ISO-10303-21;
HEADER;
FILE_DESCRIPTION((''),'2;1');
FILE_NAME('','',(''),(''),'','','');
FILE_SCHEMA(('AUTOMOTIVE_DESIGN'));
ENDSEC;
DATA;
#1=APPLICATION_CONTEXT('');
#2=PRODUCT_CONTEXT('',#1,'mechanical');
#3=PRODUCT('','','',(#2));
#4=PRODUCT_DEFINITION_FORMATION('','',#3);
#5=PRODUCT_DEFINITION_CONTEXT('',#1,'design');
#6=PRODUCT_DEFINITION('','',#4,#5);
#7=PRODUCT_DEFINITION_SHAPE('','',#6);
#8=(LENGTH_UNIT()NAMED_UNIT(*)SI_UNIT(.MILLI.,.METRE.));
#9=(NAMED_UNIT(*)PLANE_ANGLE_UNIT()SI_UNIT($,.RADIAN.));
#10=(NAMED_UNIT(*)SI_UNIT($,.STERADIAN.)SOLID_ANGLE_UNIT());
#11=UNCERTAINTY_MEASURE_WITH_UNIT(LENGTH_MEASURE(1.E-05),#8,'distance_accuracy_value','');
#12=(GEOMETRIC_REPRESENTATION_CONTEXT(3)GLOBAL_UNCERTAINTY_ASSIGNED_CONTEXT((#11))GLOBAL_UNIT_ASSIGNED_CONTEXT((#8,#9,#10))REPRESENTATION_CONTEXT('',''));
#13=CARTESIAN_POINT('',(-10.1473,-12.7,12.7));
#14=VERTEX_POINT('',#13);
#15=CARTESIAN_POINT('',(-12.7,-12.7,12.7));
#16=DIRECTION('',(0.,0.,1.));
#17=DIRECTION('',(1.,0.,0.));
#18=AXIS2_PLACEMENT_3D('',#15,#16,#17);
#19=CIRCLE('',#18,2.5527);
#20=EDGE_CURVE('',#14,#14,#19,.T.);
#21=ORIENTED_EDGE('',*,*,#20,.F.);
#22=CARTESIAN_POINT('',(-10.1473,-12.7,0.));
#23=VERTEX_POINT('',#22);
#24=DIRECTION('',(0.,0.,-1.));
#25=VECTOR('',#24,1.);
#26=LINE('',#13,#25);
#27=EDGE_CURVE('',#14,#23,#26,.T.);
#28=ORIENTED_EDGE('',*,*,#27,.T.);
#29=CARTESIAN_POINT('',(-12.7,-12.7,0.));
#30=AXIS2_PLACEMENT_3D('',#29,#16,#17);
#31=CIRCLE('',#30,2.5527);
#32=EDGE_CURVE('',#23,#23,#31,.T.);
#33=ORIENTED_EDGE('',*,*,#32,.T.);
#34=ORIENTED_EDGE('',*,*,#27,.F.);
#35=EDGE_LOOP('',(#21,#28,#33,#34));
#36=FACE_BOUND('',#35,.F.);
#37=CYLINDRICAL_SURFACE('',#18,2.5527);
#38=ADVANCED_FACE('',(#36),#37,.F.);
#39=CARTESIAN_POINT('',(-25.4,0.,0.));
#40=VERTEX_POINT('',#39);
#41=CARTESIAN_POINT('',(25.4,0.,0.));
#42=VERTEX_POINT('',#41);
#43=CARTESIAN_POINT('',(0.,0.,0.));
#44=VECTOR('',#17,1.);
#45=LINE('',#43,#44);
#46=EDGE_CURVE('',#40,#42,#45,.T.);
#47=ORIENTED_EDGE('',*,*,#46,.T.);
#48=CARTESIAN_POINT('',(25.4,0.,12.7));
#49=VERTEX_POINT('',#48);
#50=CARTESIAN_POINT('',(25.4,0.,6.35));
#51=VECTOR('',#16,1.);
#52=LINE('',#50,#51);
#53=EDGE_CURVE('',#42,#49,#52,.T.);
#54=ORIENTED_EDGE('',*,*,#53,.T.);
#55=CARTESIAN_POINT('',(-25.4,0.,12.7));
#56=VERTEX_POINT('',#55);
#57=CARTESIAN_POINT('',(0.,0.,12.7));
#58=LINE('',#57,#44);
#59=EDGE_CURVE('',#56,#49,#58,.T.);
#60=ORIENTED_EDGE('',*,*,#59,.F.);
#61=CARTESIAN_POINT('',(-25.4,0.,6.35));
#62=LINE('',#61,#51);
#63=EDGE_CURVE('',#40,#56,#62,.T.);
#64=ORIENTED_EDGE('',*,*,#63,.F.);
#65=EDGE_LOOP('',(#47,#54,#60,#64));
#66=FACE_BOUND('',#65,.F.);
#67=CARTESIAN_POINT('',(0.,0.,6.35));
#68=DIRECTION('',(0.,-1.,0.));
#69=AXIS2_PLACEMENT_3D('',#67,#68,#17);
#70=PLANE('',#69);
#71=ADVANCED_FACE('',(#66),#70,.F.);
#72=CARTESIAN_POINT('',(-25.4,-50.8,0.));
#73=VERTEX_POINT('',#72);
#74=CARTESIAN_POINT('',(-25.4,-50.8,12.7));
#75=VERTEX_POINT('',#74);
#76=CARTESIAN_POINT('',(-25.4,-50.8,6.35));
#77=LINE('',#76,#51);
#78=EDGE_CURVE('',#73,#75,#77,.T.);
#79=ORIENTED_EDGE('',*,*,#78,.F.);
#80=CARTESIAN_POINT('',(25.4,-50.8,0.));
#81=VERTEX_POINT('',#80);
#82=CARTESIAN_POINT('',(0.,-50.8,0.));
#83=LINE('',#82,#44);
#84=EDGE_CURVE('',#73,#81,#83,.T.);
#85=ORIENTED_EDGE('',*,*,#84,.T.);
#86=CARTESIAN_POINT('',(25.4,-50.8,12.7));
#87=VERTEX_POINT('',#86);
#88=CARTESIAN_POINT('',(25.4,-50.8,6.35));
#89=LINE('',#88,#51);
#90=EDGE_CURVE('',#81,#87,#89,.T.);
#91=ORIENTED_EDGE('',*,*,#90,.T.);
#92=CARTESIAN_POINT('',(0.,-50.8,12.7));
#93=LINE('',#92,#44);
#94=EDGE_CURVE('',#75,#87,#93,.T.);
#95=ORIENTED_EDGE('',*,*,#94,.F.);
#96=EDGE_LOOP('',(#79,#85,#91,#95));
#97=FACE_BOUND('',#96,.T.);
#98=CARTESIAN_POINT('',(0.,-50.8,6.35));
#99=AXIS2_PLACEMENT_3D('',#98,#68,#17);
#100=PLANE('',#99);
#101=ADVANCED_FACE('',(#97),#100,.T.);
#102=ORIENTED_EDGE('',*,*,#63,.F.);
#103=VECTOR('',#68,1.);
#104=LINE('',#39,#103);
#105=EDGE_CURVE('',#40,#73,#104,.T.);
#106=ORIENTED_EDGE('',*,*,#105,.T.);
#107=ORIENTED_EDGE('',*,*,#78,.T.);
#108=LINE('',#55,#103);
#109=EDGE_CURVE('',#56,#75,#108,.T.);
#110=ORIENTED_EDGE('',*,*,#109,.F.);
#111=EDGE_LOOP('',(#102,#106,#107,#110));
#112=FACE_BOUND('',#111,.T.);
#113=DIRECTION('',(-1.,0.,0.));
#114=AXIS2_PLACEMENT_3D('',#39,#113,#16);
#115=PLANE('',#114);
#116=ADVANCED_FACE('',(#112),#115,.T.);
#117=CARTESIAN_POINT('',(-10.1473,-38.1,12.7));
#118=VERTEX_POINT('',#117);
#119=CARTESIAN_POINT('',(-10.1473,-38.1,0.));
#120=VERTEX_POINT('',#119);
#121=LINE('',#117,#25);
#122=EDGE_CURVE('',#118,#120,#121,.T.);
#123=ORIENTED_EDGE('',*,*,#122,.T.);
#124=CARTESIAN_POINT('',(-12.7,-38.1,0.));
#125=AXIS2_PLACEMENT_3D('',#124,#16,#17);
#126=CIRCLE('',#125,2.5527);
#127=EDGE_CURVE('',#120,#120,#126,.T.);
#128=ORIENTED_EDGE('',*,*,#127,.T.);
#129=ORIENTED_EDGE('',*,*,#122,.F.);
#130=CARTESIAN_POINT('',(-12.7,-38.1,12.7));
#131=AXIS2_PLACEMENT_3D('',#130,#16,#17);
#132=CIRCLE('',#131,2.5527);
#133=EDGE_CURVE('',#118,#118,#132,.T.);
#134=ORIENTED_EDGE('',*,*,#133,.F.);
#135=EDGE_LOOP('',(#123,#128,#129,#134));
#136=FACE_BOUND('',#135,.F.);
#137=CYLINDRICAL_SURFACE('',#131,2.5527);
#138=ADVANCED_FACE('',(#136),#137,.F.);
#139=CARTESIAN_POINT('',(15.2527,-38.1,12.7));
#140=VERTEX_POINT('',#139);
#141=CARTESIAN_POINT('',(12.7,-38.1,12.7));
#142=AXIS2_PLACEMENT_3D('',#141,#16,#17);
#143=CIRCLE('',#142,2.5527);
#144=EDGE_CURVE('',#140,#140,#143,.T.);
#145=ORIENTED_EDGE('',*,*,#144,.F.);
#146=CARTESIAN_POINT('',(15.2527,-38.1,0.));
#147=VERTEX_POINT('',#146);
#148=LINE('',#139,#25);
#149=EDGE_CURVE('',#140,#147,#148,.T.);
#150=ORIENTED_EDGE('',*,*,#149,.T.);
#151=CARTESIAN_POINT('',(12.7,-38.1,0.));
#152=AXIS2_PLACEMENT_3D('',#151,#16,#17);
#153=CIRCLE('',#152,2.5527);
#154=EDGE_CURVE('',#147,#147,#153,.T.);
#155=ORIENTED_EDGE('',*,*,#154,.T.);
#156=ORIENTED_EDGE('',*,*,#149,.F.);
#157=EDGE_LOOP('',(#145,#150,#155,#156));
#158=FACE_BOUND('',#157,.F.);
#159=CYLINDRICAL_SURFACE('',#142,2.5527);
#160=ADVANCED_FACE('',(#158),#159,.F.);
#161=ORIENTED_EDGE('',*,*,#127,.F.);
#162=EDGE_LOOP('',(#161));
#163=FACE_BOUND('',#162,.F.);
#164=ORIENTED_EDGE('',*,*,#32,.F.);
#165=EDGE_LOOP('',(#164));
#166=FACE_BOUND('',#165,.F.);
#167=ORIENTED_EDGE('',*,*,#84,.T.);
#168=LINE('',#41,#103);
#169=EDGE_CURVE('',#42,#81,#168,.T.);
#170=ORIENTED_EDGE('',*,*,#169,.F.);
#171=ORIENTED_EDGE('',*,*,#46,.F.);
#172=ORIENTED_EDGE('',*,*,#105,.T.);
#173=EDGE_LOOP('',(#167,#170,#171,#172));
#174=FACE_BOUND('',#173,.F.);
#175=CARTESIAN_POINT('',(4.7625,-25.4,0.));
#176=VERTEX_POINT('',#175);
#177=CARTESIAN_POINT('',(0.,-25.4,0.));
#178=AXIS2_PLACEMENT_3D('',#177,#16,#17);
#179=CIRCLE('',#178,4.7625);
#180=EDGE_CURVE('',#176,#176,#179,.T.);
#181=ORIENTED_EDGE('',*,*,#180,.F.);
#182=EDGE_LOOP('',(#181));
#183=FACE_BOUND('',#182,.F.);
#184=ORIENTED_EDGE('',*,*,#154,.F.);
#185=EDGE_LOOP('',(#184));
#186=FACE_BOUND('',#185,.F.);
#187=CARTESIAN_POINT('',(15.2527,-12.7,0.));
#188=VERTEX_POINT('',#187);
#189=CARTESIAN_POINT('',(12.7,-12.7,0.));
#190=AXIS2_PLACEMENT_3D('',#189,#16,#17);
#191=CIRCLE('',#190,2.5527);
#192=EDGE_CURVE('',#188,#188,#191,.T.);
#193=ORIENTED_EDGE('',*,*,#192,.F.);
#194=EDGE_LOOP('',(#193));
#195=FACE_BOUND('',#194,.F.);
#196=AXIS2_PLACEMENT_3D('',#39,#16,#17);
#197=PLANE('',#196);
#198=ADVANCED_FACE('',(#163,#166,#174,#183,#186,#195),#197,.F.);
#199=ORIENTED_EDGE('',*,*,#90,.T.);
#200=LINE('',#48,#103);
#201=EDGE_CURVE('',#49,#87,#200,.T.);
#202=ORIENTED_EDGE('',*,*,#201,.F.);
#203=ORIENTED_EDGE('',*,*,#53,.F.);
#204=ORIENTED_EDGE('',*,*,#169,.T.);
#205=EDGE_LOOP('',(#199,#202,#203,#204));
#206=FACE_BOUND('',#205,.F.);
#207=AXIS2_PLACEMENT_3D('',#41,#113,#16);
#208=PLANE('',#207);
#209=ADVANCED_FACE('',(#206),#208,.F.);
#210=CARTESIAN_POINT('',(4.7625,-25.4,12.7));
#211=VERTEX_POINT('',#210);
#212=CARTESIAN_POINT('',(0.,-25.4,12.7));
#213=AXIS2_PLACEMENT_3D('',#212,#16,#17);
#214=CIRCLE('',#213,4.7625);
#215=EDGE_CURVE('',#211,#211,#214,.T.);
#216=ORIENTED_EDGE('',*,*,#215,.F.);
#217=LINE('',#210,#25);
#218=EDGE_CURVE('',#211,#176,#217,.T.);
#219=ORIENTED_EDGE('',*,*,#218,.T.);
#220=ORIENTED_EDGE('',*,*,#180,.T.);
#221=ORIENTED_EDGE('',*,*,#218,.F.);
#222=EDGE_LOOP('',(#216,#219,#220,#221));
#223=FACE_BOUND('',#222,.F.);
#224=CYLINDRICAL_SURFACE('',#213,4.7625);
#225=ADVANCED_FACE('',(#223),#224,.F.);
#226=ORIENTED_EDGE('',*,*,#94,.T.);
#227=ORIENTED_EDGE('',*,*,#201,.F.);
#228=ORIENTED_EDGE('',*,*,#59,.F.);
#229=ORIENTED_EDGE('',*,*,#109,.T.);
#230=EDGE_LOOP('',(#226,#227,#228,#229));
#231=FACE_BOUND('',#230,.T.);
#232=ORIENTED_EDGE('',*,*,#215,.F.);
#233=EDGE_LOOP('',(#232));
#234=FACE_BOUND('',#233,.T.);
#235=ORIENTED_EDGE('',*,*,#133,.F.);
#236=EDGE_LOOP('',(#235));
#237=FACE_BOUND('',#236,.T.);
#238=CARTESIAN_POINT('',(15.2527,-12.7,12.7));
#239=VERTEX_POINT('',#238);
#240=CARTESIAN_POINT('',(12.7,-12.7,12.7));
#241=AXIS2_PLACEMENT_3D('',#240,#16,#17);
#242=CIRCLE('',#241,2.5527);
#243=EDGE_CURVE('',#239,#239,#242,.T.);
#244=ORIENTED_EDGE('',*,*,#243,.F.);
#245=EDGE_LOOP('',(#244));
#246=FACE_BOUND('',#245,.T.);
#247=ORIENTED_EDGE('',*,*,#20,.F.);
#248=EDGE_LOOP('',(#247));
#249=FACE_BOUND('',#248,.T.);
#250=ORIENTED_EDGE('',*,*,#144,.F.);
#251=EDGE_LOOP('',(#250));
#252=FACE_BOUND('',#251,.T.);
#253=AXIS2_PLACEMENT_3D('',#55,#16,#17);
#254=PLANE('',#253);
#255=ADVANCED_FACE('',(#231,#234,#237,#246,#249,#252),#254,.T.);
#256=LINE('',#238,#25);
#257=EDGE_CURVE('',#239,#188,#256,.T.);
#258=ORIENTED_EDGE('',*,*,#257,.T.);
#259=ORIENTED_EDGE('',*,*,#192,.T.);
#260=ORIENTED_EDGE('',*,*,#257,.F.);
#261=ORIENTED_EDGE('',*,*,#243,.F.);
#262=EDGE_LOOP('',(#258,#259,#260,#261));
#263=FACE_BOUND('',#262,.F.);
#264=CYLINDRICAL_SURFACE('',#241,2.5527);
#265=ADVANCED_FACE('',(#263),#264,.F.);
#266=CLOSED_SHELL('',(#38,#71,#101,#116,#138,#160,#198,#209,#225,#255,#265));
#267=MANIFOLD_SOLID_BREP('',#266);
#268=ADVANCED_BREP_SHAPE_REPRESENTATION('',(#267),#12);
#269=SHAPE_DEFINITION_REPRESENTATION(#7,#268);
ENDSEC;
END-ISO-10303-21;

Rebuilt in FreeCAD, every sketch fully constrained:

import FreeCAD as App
import Part
import Sketcher

V = App.Vector
Q = App.Units.Quantity

doc = App.newDocument("Part")
body = doc.addObject("PartDesign::Body", "Body")

sketch1 = body.newObject("Sketcher::SketchObject", "Sketch")
sketch1.AttachmentSupport = (doc.getObject("XZ_Plane"), [""])
sketch1.MapMode = "FlatFace"
sketch1.addGeometry([
    Part.LineSegment(V(-25, 13, 0), V(-25, 0, 0)),
    Part.LineSegment(V(-25, 0, 0), V(25, 0, 0)),
    Part.LineSegment(V(25, 0, 0), V(25, 13, 0)),
    Part.LineSegment(V(25, 13, 0), V(-25, 13, 0)),
], False)
sketch1.addConstraint([
    Sketcher.Constraint("Coincident", 0, 2, 1, 1),
    Sketcher.Constraint("Coincident", 1, 2, 2, 1),
    Sketcher.Constraint("Coincident", 2, 2, 3, 1),
    Sketcher.Constraint("Coincident", 3, 2, 0, 1),
    Sketcher.Constraint("Vertical", 0),
    Sketcher.Constraint("Horizontal", 1),
    Sketcher.Constraint("Vertical", 2),
    Sketcher.Constraint("Horizontal", 3),
    Sketcher.Constraint("Symmetric", 0, 2, 1, 2, -1, 1),
    Sketcher.Constraint("DistanceX", 1, 1, 1, 2, Q("2 in")),
    Sketcher.Constraint("DistanceY", 0, 2, 0, 1, Q("0.5 in")),
])
pad1 = body.newObject("PartDesign::Pad", "Pad")
pad1.Profile = sketch1
pad1.Length = Q("2 in")

sketch2 = body.newObject("Sketcher::SketchObject", "Sketch001")
sketch2.AttachmentSupport = (doc.getObject("XY_Plane"), [""])
sketch2.MapMode = "FlatFace"
sketch2.AttachmentOffset = App.Placement(V(0, 0, 0.5 * 25.4), App.Rotation())
sketch2.addGeometry([
    Part.Circle(V(-12.7, -12.7, 0), V(0, 0, 1), 2.6),
    Part.Circle(V(-12.7, -38.1, 0), V(0, 0, 1), 2.6),
    Part.Circle(V(12.7, -38.1, 0), V(0, 0, 1), 2.6),
    Part.Circle(V(12.7, -12.7, 0), V(0, 0, 1), 2.6),
    Part.Circle(V(0, -25.4, 0), V(0, 0, 1), 4.8),
], False)
sketch2.addConstraint([
    Sketcher.Constraint("Equal", 0, 1),
    Sketcher.Constraint("Equal", 1, 2),
    Sketcher.Constraint("Equal", 2, 3),
    Sketcher.Constraint("Symmetric", 1, 3, 2, 3, -2),
    Sketcher.Constraint("Symmetric", 0, 3, 3, 3, -2),
    Sketcher.Constraint("PointOnObject", 4, 3, -2),
    Sketcher.Constraint("Vertical", 0, 3, 1, 3),
    Sketcher.Constraint("Diameter", 0, Q("0.201 in")),
    Sketcher.Constraint("Diameter", 4, Q("0.375 in")),
    Sketcher.Constraint("DistanceY", 4, 3, -1, 1, Q("1 in")),
    Sketcher.Constraint("DistanceY", 1, 3, 0, 3, Q("1 in")),
    Sketcher.Constraint("DistanceX", 1, 3, 2, 3, Q("1 in")),
    Sketcher.Constraint("DistanceY", 0, 3, -1, 1, Q("0.5 in")),
])
pocket1 = body.newObject("PartDesign::Pocket", "Pocket")
pocket1.Profile = sketch2
pocket1.Type = "ThroughAll"
body2 = doc.addObject("PartDesign::Body", "Body001")

sketch3 = body2.newObject("Sketcher::SketchObject", "Sketch002")
sketch3.AttachmentSupport = (doc.getObject("XY_Plane001"), [""])
sketch3.MapMode = "FlatFace"
sketch3.AttachmentOffset = App.Placement(V(0, 0, 0.5 * 25.4), App.Rotation())
sketch3.addGeometry([
    Part.LineSegment(V(-25.4, 0, 0), V(-25.4, -50.8, 0)),
    Part.LineSegment(V(-25.4, -50.8, 0), V(25.4, -50.8, 0)),
    Part.LineSegment(V(25.4, -50.8, 0), V(25.4, 0, 0)),
    Part.LineSegment(V(25.4, 0, 0), V(-25.4, 0, 0)),
    Part.Circle(V(-12.7, -38.1, 0), V(0, 0, 1), 4.8),
    Part.Circle(V(12.7, -38.1, 0), V(0, 0, 1), 4.8),
    Part.Circle(V(-12.7, -12.7, 0), V(0, 0, 1), 4.8),
    Part.Circle(V(0, -25.4, 0), V(0, 0, 1), 9.5),
    Part.Circle(V(12.7, -12.7, 0), V(0, 0, 1), 4.8),
], False)
sketch3.addConstraint([
    Sketcher.Constraint("Coincident", 0, 2, 1, 1),
    Sketcher.Constraint("Coincident", 1, 2, 2, 1),
    Sketcher.Constraint("Coincident", 2, 2, 3, 1),
    Sketcher.Constraint("Coincident", 3, 2, 0, 1),
    Sketcher.Constraint("Vertical", 0),
    Sketcher.Constraint("Horizontal", 1),
    Sketcher.Constraint("Vertical", 2),
    Sketcher.Constraint("Horizontal", 3),
    Sketcher.Constraint("Equal", 4, 5),
    Sketcher.Constraint("Equal", 5, 6),
    Sketcher.Constraint("Equal", 6, 8),
    Sketcher.Constraint("Symmetric", 2, 2, 3, 2, -1, 1),
    Sketcher.Constraint("Symmetric", 4, 3, 5, 3, -2),
    Sketcher.Constraint("Symmetric", 6, 3, 8, 3, -2),
    Sketcher.Constraint("PointOnObject", 7, 3, -2),
    Sketcher.Constraint("Vertical", 4, 3, 6, 3),
    Sketcher.Constraint("Equal", 3, 0),
    Sketcher.Constraint("Diameter", 7, Q("0.75 in")),
    Sketcher.Constraint("DistanceX", 1, 1, 1, 2, Q("2 in")),
    Sketcher.Constraint("Diameter", 4, Q("0.375 in")),
    Sketcher.Constraint("DistanceY", 7, 3, -1, 1, Q("1 in")),
    Sketcher.Constraint("DistanceX", 4, 3, 5, 3, Q("1 in")),
    Sketcher.Constraint("DistanceY", 4, 3, 6, 3, Q("1 in")),
    Sketcher.Constraint("DistanceY", 4, 3, -1, 1, Q("1.5 in")),
])
pad2 = body2.newObject("PartDesign::Pad", "Pad001")
pad2.Profile = sketch3
pad2.Length = Q("0.5 in")

sketch4 = body2.newObject("Sketcher::SketchObject", "Sketch003")
sketch4.AttachmentSupport = (doc.getObject("XY_Plane001"), [""])
sketch4.MapMode = "FlatFace"
sketch4.AttachmentOffset = App.Placement(V(0, 0, 1 * 25.4), App.Rotation())
sketch4.addGeometry([
    Part.LineSegment(V(-25.4, 0, 0), V(-25.4, -50.8, 0)),
    Part.LineSegment(V(-25.4, -50.8, 0), V(25.4, -50.8, 0)),
    Part.LineSegment(V(25.4, -50.8, 0), V(25.4, 0, 0)),
    Part.LineSegment(V(25.4, 0, 0), V(-25.4, 0, 0)),
    Part.Circle(V(-12.7, -38.1, 0), V(0, 0, 1), 4.8),
    Part.Circle(V(12.7, -38.1, 0), V(0, 0, 1), 4.8),
    Part.Circle(V(-12.7, -12.7, 0), V(0, 0, 1), 4.8),
    Part.Circle(V(0, -25.4, 0), V(0, 0, 1), 3.2),
    Part.Circle(V(12.7, -12.7, 0), V(0, 0, 1), 4.8),
], False)
sketch4.addConstraint([
    Sketcher.Constraint("Coincident", 0, 2, 1, 1),
    Sketcher.Constraint("Coincident", 1, 2, 2, 1),
    Sketcher.Constraint("Coincident", 2, 2, 3, 1),
    Sketcher.Constraint("Coincident", 3, 2, 0, 1),
    Sketcher.Constraint("Vertical", 0),
    Sketcher.Constraint("Horizontal", 1),
    Sketcher.Constraint("Vertical", 2),
    Sketcher.Constraint("Horizontal", 3),
    Sketcher.Constraint("Equal", 4, 5),
    Sketcher.Constraint("Equal", 5, 6),
    Sketcher.Constraint("Equal", 6, 8),
    Sketcher.Constraint("Symmetric", 2, 2, 3, 2, -1, 1),
    Sketcher.Constraint("Symmetric", 4, 3, 5, 3, -2),
    Sketcher.Constraint("Symmetric", 6, 3, 8, 3, -2),
    Sketcher.Constraint("PointOnObject", 7, 3, -2),
    Sketcher.Constraint("Vertical", 4, 3, 6, 3),
    Sketcher.Constraint("Equal", 3, 0),
    Sketcher.Constraint("Diameter", 7, Q("0.25 in")),
    Sketcher.Constraint("DistanceX", 1, 1, 1, 2, Q("2 in")),
    Sketcher.Constraint("Diameter", 4, Q("0.375 in")),
    Sketcher.Constraint("DistanceY", 7, 3, -1, 1, Q("1 in")),
    Sketcher.Constraint("DistanceX", 4, 3, 5, 3, Q("1 in")),
    Sketcher.Constraint("DistanceY", 4, 3, 6, 3, Q("1 in")),
    Sketcher.Constraint("DistanceY", 4, 3, -1, 1, Q("1.5 in")),
])
pad3 = body2.newObject("PartDesign::Pad", "Pad002")
pad3.Profile = sketch4
pad3.Length = Q("0.25 in")
body3 = doc.addObject("PartDesign::Body", "Body002")
body3.AllowCompound = True

sketch5 = body3.newObject("Sketcher::SketchObject", "Sketch004")
sketch5.AttachmentSupport = (doc.getObject("XY_Plane002"), [""])
sketch5.MapMode = "FlatFace"
sketch5.AttachmentOffset = App.Placement(V(0, 0, 1.25 * 25.4), App.Rotation())
sketch5.addGeometry(Part.Circle(V(0, -25.4, 0), V(0, 0, 1), 2.9), False)
sketch5.addConstraint([
    Sketcher.Constraint("PointOnObject", 0, 3, -2),
    Sketcher.Constraint("Diameter", 0, Q("0.225 in")),
    Sketcher.Constraint("DistanceY", 0, 3, -1, 1, Q("1 in")),
])
pad4 = body3.newObject("PartDesign::Pad", "Pad003")
pad4.Profile = sketch5
pad4.Length = Q("1.5 in")
pad4.Reversed = True
pad5 = body3.newObject("PartDesign::Pad", "Pad004")
pad5.Profile = sketch5
pad5.Length = Q("0.625 in")
pad5.Reversed = True

sketch6 = body3.newObject("Sketcher::SketchObject", "Sketch005")
sketch6.AttachmentSupport = (doc.getObject("XY_Plane002"), [""])
sketch6.MapMode = "FlatFace"
sketch6.AttachmentOffset = App.Placement(V(0, 0, 1.875 * 25.4), App.Rotation())
sketch6.addGeometry(Part.Circle(V(0, -25, 0), V(0, 0, 1), 19), False)
sketch6.addConstraint([
    Sketcher.Constraint("PointOnObject", 0, 3, -2),
    Sketcher.Constraint("Diameter", 0, Q("1.5 in")),
    Sketcher.Constraint("DistanceY", 0, 3, -1, 1, Q("1 in")),
])
pad6 = body3.newObject("PartDesign::Pad", "Pad005")
pad6.Profile = sketch6
pad6.Length = Q("0.375 in")
body4 = doc.addObject("PartDesign::Body", "Body003")

sketch7 = body4.newObject("Sketcher::SketchObject", "Sketch006")
sketch7.AttachmentSupport = (doc.getObject("XY_Plane003"), [""])
sketch7.MapMode = "FlatFace"
sketch7.AttachmentOffset = App.Placement(V(0, 0, 0.5 * 25.4), App.Rotation())
sketch7.addGeometry([
    Part.LineSegment(V(4.8, -28.1, 0), V(4.8, -22.7, 0)),
    Part.LineSegment(V(4.8, -22.7, 0), V(0, -19.9, 0)),
    Part.LineSegment(V(0, -19.9, 0), V(-4.8, -22.7, 0)),
    Part.LineSegment(V(-4.8, -22.7, 0), V(-4.8, -28.1, 0)),
    Part.LineSegment(V(-4.8, -28.1, 0), V(0, -30.9, 0)),
    Part.LineSegment(V(0, -30.9, 0), V(4.8, -28.1, 0)),
    Part.Circle(V(0, -25.4, 0), V(0, 0, 1), 2.9),
], False)
sketch7.addConstraint([
    Sketcher.Constraint("Coincident", 0, 2, 1, 1),
    Sketcher.Constraint("Coincident", 1, 2, 2, 1),
    Sketcher.Constraint("Coincident", 2, 2, 3, 1),
    Sketcher.Constraint("Coincident", 3, 2, 4, 1),
    Sketcher.Constraint("Coincident", 4, 2, 5, 1),
    Sketcher.Constraint("Coincident", 5, 2, 0, 1),
    Sketcher.Constraint("Vertical", 0),
    Sketcher.Constraint("Vertical", 3),
    Sketcher.Constraint("Symmetric", 0, 2, 2, 2, -2),
    Sketcher.Constraint("PointOnObject", 6, 3, -2),
    Sketcher.Constraint("PointOnObject", 1, 2, -2),
    Sketcher.Constraint("PointOnObject", 4, 2, -2),
    Sketcher.Constraint("Parallel", 1, 4),
    Sketcher.Constraint("Parallel", 2, 5),
    Sketcher.Constraint("Diameter", 6, Q("0.225 in")),
    Sketcher.Constraint("DistanceY", 6, 3, -1, 1, Q("1 in")),
    Sketcher.Constraint("Angle", 1, Q("150.000006 deg")),
    Sketcher.Constraint("DistanceX", -1, 1, 0, 2, Q("0.1875 in")),
    Sketcher.Constraint("DistanceY", 0, 1, 0, 2, 5.499262),
    Sketcher.Constraint("DistanceY", 0, 2, -1, 1, 22.650369),
])
pad7 = body4.newObject("PartDesign::Pad", "Pad006")
pad7.Profile = sketch7
pad7.Length = Q("0.0625 in")
body2.Visibility = False
body3.Visibility = False
body4.Visibility = False

doc.recompute()
